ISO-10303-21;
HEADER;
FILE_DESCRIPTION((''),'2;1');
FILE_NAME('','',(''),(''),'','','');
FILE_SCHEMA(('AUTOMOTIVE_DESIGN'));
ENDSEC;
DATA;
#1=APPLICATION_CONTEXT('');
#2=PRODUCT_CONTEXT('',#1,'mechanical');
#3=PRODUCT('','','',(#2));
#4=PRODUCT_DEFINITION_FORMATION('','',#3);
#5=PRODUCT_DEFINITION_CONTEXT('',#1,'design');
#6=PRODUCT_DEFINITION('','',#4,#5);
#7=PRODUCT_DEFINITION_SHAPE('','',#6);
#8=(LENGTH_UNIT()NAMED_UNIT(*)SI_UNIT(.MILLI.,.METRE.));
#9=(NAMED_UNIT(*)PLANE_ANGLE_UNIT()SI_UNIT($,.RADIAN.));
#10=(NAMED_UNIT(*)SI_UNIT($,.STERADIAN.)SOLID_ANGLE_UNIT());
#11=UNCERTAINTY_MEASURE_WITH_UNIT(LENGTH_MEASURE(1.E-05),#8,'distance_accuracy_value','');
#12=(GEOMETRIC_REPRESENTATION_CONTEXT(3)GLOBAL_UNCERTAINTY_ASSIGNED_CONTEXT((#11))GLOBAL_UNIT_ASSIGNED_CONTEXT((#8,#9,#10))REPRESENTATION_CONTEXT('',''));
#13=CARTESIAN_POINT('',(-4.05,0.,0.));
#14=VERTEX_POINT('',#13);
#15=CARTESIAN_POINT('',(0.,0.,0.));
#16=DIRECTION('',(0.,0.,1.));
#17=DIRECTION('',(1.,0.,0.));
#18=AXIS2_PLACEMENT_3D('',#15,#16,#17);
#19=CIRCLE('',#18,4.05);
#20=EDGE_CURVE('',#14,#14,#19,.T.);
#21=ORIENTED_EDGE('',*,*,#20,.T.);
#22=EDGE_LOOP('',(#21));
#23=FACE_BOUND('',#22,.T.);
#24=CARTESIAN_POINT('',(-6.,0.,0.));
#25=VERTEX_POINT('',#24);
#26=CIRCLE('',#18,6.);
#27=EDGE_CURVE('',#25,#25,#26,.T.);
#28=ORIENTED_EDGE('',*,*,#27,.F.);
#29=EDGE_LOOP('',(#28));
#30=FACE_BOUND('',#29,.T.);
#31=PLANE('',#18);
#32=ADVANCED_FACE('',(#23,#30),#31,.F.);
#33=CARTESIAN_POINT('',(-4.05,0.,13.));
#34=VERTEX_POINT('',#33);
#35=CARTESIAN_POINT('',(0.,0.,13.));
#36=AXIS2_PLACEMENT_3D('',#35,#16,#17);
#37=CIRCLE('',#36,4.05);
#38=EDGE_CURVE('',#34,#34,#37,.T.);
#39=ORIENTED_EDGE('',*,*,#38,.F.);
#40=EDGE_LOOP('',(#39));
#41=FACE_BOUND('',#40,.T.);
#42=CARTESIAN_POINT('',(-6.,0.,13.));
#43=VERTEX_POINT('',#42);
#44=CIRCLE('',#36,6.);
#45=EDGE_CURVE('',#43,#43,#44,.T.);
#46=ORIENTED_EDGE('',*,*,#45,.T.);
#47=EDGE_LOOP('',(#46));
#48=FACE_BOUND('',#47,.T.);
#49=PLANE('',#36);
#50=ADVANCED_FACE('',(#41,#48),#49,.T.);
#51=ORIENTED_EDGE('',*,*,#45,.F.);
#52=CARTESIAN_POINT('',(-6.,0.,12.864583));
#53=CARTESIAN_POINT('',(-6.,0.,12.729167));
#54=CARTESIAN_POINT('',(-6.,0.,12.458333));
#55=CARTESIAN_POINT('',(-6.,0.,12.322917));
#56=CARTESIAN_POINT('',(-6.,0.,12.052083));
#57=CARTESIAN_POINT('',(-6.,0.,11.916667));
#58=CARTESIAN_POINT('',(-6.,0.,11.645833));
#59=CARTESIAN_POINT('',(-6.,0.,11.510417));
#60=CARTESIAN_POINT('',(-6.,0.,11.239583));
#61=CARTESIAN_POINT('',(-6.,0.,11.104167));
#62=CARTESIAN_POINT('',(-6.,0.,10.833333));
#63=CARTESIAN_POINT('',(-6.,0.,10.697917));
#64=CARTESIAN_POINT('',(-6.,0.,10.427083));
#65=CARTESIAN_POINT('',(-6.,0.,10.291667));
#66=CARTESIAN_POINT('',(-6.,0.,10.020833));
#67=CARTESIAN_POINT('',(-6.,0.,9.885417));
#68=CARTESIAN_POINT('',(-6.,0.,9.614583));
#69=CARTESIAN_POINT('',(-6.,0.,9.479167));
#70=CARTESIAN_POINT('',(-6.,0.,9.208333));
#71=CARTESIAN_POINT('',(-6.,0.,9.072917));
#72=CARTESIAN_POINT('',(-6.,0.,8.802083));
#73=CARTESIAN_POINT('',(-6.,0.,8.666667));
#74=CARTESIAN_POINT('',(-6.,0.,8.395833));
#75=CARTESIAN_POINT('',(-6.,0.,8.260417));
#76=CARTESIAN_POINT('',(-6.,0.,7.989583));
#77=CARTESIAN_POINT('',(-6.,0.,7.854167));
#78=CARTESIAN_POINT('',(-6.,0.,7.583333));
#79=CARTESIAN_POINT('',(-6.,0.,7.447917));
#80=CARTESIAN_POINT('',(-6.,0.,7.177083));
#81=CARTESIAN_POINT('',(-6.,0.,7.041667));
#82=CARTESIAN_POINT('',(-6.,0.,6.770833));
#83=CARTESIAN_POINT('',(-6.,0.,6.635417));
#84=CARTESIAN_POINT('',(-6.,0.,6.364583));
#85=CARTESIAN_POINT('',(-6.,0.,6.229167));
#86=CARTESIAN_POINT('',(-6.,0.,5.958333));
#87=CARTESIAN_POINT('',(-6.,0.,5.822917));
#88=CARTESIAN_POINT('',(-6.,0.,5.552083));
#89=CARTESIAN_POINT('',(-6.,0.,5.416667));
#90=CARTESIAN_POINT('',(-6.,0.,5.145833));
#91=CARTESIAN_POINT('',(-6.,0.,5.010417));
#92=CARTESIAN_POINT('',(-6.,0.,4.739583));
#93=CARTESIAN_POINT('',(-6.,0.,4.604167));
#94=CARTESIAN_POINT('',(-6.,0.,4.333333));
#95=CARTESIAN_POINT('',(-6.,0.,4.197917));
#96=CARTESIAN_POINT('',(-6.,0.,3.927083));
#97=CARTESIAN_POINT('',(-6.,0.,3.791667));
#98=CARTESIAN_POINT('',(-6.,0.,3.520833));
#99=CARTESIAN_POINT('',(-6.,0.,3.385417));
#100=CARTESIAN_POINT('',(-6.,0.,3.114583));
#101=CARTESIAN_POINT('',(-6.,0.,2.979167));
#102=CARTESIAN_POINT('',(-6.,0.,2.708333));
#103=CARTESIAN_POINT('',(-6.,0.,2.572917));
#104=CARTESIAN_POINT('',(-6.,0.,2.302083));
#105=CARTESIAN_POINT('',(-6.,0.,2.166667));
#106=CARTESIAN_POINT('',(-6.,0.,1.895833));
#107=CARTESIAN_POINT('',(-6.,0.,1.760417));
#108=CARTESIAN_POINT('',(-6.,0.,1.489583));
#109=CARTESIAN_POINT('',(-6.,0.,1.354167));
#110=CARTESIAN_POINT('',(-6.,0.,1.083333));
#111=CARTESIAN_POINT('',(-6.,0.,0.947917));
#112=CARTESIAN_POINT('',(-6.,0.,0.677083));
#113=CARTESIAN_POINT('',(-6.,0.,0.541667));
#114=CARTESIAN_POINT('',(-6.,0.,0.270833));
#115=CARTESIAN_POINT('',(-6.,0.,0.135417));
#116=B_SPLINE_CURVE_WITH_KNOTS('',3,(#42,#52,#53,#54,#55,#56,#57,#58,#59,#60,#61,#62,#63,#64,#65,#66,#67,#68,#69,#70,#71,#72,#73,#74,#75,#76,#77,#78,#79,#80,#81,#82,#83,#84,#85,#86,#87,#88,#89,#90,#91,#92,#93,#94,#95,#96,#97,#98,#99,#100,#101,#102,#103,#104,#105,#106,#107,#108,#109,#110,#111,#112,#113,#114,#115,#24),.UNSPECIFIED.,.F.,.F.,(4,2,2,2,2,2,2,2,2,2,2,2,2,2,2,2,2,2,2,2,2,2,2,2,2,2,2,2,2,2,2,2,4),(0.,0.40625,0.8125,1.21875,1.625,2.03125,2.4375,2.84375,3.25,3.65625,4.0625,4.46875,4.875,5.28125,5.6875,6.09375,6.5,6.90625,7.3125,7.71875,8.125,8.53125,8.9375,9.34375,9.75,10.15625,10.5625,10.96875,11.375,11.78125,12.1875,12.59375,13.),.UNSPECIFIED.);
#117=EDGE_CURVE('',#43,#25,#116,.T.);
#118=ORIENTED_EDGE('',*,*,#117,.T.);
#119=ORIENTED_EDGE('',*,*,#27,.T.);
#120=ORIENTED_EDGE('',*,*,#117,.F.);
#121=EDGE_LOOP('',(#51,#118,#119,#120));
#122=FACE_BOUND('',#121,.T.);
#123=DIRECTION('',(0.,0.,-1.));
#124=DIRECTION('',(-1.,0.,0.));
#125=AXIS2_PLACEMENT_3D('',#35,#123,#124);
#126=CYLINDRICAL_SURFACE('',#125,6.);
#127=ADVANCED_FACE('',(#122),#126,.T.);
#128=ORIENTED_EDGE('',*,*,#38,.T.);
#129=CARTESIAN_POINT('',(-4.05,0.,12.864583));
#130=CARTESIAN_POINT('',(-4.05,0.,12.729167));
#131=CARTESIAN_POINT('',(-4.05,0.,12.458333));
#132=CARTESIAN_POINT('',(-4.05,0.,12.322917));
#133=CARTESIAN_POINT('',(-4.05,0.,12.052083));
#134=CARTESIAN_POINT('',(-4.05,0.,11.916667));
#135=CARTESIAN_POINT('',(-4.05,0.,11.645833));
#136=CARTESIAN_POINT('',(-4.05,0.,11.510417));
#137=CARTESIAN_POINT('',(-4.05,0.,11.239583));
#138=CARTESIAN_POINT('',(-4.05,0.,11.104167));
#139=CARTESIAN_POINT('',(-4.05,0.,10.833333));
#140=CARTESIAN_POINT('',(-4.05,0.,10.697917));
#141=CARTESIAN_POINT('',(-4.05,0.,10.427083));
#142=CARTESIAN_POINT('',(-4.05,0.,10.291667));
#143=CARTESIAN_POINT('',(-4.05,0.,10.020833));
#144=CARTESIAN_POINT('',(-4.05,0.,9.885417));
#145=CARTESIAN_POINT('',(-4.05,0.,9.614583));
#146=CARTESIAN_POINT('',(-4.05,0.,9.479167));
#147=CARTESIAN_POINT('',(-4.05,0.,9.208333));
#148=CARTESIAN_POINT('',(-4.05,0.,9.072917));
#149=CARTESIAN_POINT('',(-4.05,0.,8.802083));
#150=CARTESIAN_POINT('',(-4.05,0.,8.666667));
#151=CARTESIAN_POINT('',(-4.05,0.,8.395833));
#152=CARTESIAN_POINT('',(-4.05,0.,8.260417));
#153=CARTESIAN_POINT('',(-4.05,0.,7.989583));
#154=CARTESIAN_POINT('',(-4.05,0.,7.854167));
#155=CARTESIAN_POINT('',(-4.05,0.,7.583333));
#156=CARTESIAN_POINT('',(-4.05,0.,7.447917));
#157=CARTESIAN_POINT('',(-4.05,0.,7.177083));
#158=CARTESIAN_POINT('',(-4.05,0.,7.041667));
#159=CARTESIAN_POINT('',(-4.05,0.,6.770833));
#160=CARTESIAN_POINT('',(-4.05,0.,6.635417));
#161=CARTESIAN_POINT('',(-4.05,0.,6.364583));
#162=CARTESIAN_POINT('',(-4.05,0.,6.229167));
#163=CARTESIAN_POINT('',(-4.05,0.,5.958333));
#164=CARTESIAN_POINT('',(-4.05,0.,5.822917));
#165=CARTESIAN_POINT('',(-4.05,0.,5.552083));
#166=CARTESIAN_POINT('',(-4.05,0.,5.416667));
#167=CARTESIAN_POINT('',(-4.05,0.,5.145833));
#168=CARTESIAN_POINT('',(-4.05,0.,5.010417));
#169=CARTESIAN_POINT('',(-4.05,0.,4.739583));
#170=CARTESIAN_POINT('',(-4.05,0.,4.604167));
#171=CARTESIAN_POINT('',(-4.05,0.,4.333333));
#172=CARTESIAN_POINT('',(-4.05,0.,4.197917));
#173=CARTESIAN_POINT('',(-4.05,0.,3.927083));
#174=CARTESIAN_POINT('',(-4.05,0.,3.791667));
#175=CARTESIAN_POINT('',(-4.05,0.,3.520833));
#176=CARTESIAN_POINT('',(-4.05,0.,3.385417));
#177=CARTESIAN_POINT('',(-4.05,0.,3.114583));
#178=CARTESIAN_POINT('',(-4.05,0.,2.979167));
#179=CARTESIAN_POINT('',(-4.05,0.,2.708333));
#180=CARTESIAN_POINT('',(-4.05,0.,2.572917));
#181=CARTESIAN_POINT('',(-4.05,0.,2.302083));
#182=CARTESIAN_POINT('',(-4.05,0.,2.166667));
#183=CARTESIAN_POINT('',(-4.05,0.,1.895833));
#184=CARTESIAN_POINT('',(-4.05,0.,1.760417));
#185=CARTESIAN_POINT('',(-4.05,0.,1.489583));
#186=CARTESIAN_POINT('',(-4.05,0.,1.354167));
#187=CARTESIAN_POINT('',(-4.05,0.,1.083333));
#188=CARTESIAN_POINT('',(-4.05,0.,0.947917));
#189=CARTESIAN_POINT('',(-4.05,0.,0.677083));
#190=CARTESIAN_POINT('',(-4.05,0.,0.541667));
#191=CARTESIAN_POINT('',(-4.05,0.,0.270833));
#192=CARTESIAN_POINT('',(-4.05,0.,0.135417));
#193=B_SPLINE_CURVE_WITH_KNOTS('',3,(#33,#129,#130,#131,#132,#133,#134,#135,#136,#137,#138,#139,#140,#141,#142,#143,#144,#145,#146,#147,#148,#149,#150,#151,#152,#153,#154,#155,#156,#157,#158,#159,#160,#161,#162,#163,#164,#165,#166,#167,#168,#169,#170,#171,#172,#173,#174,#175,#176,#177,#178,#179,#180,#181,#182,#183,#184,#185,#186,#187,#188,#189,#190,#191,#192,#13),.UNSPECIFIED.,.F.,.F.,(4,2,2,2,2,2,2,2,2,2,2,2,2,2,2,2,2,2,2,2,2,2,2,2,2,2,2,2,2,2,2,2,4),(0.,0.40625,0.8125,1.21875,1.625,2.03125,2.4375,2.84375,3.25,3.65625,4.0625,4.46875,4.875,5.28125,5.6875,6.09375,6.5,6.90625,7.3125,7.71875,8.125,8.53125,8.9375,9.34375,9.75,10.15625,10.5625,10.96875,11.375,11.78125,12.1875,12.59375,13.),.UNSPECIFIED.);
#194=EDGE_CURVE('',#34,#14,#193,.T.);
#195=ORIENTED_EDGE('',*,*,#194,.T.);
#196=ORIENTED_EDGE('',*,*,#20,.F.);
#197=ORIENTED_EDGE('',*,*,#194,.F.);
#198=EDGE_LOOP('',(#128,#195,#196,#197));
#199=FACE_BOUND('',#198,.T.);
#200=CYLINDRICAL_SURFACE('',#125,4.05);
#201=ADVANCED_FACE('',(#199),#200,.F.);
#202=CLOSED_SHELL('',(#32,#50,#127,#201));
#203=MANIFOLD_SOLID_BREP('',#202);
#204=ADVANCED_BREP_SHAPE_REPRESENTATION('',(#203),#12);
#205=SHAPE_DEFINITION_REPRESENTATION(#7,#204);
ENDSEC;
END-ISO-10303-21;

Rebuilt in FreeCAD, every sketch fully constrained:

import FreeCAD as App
import Part
import Sketcher

V = App.Vector
Q = App.Units.Quantity

doc = App.newDocument("Part")
body = doc.addObject("PartDesign::Body", "Body")

# Sketch on XY plane
sketch1 = doc.addObject("Sketcher::SketchObject", "Sketch")
body.addObject(sketch1)
sketch1.AttachmentSupport = (doc.XY_Plane, [""])
sketch1.MapMode = "FlatFace"
sketch1.addGeometry([
    Part.Circle(V(0, 0, 0), V(0, 0, 1), 6),
    Part.Circle(V(0, 0, 0), V(0, 0, 1), 4.05),
], False)
sketch1.addConstraint([
    Sketcher.Constraint("Coincident", 0, 3, -1, 1),
    Sketcher.Constraint("Coincident", 1, 3, -1, 1),
    Sketcher.Constraint("Diameter", 0, Q("12 mm")),
    Sketcher.Constraint("Diameter", 1, Q("8.1 mm")),
])
pad1 = doc.addObject("PartDesign::Pad", "Pad")
body.addObject(pad1)
pad1.Profile = sketch1
pad1.Length = 13

doc.recompute()
